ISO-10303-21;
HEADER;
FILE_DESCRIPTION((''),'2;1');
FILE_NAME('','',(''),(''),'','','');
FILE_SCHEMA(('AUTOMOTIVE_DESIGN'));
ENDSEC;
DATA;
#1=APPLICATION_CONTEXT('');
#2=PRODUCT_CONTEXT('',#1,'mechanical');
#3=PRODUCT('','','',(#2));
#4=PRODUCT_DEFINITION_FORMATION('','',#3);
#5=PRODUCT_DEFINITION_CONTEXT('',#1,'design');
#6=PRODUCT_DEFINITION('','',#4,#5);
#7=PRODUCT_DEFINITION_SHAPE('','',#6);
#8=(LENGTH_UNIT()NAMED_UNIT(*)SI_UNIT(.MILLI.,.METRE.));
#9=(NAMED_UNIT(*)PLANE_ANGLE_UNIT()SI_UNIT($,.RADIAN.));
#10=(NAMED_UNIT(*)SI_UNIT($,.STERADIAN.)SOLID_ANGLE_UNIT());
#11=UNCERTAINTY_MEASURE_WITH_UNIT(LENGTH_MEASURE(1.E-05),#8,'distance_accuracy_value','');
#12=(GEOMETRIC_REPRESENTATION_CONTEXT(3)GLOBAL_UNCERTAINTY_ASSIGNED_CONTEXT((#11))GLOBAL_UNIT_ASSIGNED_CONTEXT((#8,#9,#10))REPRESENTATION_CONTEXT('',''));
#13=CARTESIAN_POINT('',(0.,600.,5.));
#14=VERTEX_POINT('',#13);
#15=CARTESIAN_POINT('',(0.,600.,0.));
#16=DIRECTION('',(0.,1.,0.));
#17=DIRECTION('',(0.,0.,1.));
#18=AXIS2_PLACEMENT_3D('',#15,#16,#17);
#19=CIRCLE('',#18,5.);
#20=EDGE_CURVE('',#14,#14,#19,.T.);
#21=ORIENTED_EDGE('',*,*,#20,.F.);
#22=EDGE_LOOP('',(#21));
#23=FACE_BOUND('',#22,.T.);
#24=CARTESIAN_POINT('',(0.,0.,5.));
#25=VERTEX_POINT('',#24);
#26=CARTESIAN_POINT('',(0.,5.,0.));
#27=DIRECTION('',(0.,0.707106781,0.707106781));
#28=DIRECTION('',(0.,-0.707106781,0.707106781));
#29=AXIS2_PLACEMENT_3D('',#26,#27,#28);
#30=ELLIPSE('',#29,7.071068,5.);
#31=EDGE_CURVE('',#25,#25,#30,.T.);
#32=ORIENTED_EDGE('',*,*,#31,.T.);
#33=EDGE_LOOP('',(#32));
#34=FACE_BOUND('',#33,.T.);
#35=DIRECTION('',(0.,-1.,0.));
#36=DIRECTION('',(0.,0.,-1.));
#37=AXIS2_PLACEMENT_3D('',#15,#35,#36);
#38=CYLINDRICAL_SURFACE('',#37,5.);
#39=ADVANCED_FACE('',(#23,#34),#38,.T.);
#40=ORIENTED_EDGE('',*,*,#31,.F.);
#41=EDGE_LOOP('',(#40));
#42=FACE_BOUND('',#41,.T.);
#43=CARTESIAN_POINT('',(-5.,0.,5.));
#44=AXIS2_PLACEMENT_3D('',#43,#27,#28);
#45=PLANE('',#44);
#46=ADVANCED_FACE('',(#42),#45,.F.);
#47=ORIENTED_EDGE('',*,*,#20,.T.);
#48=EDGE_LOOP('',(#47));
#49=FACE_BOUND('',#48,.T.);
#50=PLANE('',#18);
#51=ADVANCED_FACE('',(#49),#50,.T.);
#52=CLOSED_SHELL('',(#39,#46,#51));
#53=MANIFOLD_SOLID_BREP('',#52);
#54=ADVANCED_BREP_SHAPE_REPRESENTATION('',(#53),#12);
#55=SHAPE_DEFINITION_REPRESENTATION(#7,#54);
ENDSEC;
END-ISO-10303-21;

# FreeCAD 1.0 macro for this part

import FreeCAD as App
import Part
import Sketcher
from FreeCAD import Vector
Q = App.Units.Quantity


def add_polygon(sketch, points):
    """Adds a closed chain of lines whose ends are joined by coincident constraints."""
    first, n = sketch.GeometryCount, len(points)
    for a, b in zip(points, points[1:] + points[:1]):
        sketch.addGeometry(Part.LineSegment(App.Vector(*a, 0), App.Vector(*b, 0)), False)
    for i in range(n):
        sketch.addConstraint(Sketcher.Constraint("Coincident", first + i, 2, first + (i + 1) % n, 1))

doc = App.newDocument("Part")
body = doc.addObject("PartDesign::Body", "Body")

# Sketch on XZ plane
sketch1 = doc.addObject("Sketcher::SketchObject", "Sketch")
body.addObject(sketch1)
sketch1.AttachmentSupport = (doc.XZ_Plane, [""])
sketch1.MapMode = "FlatFace"
sketch1.addGeometry(Part.Circle(Vector(0, 0, 0), Vector(0, 0, 1), 5), False)
sketch1.addConstraint(Sketcher.Constraint("Coincident", 0, 3, -1, 1))
sketch1.addConstraint(Sketcher.Constraint("Diameter", 0, Q("10 mm")))
pad1 = doc.addObject("PartDesign::Pad", "Pad")
body.addObject(pad1)
pad1.Profile = sketch1
pad1.Length = 600
pad1.Reversed = True

# Sketch on YZ plane
sketch2 = doc.addObject("Sketcher::SketchObject", "Sketch001")
body.addObject(sketch2)
sketch2.AttachmentSupport = (doc.YZ_Plane, [""])
sketch2.MapMode = "FlatFace"
add_polygon(sketch2, [(10, -5), (0, 5), (0, -5)])  # lines 0-2
sketch2.addConstraint(Sketcher.Constraint("Vertical", 1))
sketch2.addConstraint(Sketcher.Constraint("Horizontal", 2))
sketch2.addConstraint(Sketcher.Constraint("Symmetric", 0, 2, 1, 2, -1, 1))
sketch2.addConstraint(Sketcher.Constraint("Equal", 2, 1))
sketch2.addConstraint(Sketcher.Constraint("DistanceX", 2, 1, 2, 2, Q("10 mm")))
pocket1 = doc.addObject("PartDesign::Pocket", "Pocket")
body.addObject(pocket1)
pocket1.Profile = sketch2
pocket1.Type = "ThroughAll"
pocket1.Midplane = True

doc.recompute()
